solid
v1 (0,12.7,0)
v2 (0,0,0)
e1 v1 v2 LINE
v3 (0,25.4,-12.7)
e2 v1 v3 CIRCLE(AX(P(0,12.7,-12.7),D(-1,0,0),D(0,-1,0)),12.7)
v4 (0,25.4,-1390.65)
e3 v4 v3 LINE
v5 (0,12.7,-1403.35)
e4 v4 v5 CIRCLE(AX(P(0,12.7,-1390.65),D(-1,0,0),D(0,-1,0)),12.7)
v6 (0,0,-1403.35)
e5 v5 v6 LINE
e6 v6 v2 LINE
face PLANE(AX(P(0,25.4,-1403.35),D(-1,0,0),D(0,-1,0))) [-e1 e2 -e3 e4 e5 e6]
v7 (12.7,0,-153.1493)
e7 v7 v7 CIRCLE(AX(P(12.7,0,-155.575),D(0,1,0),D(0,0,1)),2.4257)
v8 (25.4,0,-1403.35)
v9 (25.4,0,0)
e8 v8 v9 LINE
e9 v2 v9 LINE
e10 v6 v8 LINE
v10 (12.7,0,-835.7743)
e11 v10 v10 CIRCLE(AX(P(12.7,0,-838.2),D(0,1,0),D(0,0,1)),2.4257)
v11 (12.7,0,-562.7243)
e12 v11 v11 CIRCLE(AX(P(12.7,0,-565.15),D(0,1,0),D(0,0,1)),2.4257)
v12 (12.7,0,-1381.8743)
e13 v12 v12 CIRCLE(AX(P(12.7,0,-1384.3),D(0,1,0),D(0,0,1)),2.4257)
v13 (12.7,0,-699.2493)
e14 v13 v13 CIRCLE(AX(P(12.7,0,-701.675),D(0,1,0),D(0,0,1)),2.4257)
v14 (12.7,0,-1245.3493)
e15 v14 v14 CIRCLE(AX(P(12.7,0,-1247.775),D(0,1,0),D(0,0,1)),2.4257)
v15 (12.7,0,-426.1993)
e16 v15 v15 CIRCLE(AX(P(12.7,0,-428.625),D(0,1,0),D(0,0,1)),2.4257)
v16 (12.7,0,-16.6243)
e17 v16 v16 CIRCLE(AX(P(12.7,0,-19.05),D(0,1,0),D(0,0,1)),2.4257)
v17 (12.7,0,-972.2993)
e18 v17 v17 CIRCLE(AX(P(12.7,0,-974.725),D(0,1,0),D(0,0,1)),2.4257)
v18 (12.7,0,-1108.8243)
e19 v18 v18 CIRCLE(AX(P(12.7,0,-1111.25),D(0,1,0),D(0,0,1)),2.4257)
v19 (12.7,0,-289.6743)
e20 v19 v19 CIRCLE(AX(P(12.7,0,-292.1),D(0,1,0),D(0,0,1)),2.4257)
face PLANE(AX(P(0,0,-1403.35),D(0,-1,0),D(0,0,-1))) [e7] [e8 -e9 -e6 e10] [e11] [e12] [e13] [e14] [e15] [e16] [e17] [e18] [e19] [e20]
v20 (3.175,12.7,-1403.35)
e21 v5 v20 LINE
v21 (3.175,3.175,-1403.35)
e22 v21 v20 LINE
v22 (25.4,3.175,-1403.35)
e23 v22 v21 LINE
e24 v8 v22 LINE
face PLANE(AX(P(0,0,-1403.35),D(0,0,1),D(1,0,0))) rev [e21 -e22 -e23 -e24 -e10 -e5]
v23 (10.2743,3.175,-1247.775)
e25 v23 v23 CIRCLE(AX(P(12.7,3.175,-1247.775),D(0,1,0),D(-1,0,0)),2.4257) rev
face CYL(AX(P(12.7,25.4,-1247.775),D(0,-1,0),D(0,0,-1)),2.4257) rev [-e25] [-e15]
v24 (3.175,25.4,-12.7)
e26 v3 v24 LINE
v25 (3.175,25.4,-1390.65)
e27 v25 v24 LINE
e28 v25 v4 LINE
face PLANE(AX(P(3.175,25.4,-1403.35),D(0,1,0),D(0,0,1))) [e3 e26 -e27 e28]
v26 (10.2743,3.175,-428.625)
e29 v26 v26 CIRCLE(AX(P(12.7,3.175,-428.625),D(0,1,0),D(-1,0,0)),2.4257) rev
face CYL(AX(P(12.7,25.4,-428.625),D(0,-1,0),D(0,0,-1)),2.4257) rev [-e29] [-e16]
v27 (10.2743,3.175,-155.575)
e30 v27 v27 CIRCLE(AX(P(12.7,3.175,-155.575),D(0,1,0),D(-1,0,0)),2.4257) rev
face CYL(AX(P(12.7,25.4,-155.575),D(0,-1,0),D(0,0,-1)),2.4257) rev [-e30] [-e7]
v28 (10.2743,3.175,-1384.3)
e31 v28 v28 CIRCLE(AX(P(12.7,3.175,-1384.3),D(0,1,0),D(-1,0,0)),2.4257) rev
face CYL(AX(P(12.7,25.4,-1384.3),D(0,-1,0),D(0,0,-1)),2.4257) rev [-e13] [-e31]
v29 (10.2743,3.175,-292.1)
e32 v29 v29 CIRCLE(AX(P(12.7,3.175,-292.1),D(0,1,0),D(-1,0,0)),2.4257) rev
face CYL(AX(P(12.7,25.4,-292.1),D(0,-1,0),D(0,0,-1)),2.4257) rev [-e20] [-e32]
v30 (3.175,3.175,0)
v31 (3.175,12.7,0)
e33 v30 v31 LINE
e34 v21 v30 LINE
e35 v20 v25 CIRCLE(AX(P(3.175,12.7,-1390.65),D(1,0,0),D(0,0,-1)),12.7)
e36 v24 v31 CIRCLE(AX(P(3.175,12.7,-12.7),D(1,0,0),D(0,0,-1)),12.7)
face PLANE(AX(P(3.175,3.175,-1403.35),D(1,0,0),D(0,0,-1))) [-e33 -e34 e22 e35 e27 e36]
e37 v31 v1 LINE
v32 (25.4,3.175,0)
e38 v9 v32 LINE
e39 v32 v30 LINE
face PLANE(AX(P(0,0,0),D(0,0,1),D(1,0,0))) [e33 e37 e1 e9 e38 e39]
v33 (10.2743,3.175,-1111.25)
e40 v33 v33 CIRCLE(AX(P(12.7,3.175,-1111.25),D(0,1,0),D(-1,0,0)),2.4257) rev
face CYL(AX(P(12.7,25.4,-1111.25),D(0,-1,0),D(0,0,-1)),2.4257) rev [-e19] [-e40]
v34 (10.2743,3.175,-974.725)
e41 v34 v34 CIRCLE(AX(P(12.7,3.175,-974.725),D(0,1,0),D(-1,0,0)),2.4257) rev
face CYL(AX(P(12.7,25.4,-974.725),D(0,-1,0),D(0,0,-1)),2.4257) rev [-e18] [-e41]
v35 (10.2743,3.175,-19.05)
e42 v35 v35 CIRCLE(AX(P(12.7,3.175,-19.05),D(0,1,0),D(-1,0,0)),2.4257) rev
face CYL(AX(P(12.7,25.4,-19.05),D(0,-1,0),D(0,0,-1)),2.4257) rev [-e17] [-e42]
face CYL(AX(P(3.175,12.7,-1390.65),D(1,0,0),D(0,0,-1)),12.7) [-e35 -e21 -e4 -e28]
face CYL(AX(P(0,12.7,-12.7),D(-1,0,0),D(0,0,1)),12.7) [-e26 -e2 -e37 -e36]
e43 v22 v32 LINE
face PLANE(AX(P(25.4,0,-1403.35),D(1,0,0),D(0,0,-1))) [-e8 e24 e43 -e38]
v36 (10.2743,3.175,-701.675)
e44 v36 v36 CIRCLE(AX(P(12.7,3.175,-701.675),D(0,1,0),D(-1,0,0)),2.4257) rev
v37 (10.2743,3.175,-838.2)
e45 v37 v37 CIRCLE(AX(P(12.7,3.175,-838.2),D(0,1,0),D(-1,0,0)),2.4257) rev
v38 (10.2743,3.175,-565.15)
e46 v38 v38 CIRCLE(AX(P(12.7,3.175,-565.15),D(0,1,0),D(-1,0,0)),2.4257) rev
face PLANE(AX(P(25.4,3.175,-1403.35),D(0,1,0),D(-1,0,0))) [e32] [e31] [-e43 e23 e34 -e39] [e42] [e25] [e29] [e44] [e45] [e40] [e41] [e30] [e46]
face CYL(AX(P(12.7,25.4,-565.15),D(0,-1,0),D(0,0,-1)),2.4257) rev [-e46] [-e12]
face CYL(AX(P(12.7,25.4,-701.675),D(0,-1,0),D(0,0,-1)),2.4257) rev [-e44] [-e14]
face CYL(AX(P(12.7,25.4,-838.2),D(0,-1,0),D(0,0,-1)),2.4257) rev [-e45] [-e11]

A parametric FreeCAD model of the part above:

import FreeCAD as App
import Part
import Sketcher

V = App.Vector
Q = App.Units.Quantity


def edges_at(feature, points):
    """Names of the edges that pass closest to the given points."""
    edges = feature.Shape.Edges
    near = lambda p: min(range(len(edges)), key=lambda i: edges[i].distToShape(Part.Vertex(*p))[0])
    return sorted({f"Edge{near(p) + 1}" for p in points})


def add_polygon(sketch, points):
    """Adds a closed chain of lines whose ends are joined by coincident constraints."""
    first, n = sketch.GeometryCount, len(points)
    for a, b in zip(points, points[1:] + points[:1]):
        sketch.addGeometry(Part.LineSegment(App.Vector(*a, 0), App.Vector(*b, 0)), False)
    for i in range(n):
        sketch.addConstraint(Sketcher.Constraint("Coincident", first + i, 2, first + (i + 1) % n, 1))

doc = App.newDocument("Part")
body = doc.addObject("PartDesign::Body", "Body")

# Sketch on XY plane
sketch1 = body.newObject("Sketcher::SketchObject", "Sketch")
sketch1.AttachmentSupport = (doc.getObject("XY_Plane"), [""])
sketch1.MapMode = "FlatFace"
add_polygon(sketch1, [(0, 0), (25.4, 0), (25.4, 3.175), (3.175, 3.175), (3.175, 25.4), (0, 25.4)])  # lines 0-5
sketch1.addConstraint([
    Sketcher.Constraint("Horizontal", 0),
    Sketcher.Constraint("Vertical", 1),
    Sketcher.Constraint("Horizontal", 2),
    Sketcher.Constraint("Vertical", 3),
    Sketcher.Constraint("Horizontal", 4),
    Sketcher.Constraint("Vertical", 5),
    Sketcher.Constraint("Coincident", 5, 2, -1, 1),
    Sketcher.Constraint("Equal", 4, 1),
    Sketcher.Constraint("Equal", 2, 3),
    Sketcher.Constraint("DistanceX", 0, 1, 0, 2, Q("1 in")),
    Sketcher.Constraint("DistanceX", 2, 2, 2, 1, Q("0.875 in")),
])
pad1 = body.newObject("PartDesign::Pad", "Pad")
pad1.Profile = sketch1
pad1.Length = Q("55.25 in")
pad1.Reversed = True

# Sketch on XZ plane
sketch2 = body.newObject("Sketcher::SketchObject", "Sketch001")
sketch2.AttachmentSupport = (doc.getObject("XZ_Plane"), [""])
sketch2.MapMode = "FlatFace"
sketch2.addGeometry(Part.Circle(V(12.7, -19.05, 0), V(0, 0, 1), 2.4257), False)
sketch2.addConstraint([
    Sketcher.Constraint("Diameter", 0, Q("0.191 in")),
    Sketcher.Constraint("DistanceX", -1, 1, 0, 3, Q("0.5 in")),
    Sketcher.Constraint("DistanceY", 0, 3, -1, 1, Q("0.75 in")),
])
pocket1 = body.newObject("PartDesign::Pocket", "Pocket")
pocket1.Profile = sketch2
pocket1.Type = "ThroughAll"
doc.recompute()

linearpattern = body.newObject("PartDesign::LinearPattern", "LinearPattern")
linearpattern.Originals = [pocket1]
linearpattern.Direction = (doc.getObject("Z_Axis"), [""])
linearpattern.Mode = "offset"
linearpattern.Offset = Q("5.375 in")
linearpattern.Occurrences = 11
linearpattern.Reversed = True
body.Tip = linearpattern
doc.recompute()

fillet = body.newObject("PartDesign::Fillet", "Fillet")
fillet.Base = (linearpattern, edges_at(linearpattern, [(1.587, 25.4, -1403.35), (1.587, 25.4, 0)]))
fillet.Radius = Q("0.5 in")

doc.recompute()
